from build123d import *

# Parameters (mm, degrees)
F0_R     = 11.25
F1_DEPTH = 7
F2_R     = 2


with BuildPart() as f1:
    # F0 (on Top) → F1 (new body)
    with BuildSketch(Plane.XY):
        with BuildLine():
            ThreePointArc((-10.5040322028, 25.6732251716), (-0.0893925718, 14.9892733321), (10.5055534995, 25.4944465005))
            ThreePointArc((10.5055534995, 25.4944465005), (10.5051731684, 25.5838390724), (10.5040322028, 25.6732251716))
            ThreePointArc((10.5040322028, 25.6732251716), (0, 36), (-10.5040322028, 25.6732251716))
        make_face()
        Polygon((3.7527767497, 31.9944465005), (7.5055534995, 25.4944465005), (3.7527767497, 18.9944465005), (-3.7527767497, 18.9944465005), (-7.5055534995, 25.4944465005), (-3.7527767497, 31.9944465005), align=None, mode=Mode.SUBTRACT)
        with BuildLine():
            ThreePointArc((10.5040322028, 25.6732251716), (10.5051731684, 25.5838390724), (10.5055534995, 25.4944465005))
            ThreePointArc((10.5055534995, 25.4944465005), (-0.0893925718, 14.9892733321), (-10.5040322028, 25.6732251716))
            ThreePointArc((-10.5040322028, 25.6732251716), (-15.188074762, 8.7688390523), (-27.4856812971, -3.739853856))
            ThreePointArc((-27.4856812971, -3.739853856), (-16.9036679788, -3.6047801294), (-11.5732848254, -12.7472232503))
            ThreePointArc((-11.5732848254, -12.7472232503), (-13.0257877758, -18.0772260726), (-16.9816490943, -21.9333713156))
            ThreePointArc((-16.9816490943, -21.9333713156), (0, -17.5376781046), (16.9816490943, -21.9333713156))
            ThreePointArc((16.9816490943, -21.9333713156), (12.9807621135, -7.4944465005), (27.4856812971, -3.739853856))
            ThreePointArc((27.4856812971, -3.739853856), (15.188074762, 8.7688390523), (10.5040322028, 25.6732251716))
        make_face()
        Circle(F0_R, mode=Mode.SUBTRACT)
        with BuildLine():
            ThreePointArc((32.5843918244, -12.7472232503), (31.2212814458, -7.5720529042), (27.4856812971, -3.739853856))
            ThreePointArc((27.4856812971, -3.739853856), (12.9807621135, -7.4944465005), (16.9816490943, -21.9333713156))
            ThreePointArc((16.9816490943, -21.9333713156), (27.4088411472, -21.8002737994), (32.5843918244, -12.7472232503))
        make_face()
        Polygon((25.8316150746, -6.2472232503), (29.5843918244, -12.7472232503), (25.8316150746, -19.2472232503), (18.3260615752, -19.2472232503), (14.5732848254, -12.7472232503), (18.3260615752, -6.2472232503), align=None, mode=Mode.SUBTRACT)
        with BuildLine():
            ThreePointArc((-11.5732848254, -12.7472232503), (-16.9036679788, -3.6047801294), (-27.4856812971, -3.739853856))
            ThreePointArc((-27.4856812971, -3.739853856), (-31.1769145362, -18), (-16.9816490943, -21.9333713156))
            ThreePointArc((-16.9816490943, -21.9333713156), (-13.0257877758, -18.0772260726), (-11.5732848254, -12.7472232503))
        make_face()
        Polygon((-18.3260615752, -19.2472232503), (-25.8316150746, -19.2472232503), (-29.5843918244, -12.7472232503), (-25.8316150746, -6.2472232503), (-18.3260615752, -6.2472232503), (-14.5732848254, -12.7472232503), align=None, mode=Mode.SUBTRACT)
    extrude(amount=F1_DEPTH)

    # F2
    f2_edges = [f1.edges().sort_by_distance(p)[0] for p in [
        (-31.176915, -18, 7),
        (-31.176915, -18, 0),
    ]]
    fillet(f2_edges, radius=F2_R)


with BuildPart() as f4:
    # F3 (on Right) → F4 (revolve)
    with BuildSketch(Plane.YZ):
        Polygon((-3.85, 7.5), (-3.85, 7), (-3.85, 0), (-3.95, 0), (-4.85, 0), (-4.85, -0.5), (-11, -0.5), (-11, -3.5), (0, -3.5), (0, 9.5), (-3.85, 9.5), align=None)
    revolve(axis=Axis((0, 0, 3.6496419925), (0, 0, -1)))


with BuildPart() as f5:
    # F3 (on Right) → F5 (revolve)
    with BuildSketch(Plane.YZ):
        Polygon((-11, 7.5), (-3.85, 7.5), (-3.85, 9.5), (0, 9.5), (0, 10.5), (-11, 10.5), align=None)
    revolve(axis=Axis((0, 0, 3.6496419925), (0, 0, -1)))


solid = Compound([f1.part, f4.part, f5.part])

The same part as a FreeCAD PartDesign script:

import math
import FreeCAD as App
import Part
import Sketcher

V = App.Vector
Q = App.Units.Quantity


def edges_at(feature, points):
    """Names of the edges that pass closest to the given points."""
    edges = feature.Shape.Edges
    near = lambda p: min(range(len(edges)), key=lambda i: edges[i].distToShape(Part.Vertex(*p))[0])
    return sorted({f"Edge{near(p) + 1}" for p in points})


def add_polygon(sketch, points):
    """Adds a closed chain of lines whose ends are joined by coincident constraints."""
    first, n = sketch.GeometryCount, len(points)
    for a, b in zip(points, points[1:] + points[:1]):
        sketch.addGeometry(Part.LineSegment(App.Vector(*a, 0), App.Vector(*b, 0)), False)
    for i in range(n):
        sketch.addConstraint(Sketcher.Constraint("Coincident", first + i, 2, first + (i + 1) % n, 1))

doc = App.newDocument("Part")
body = doc.addObject("PartDesign::Body", "Body")

# Sketch on XY plane
sketch1 = body.newObject("Sketcher::SketchObject", "Sketch")
sketch1.AttachmentSupport = (doc.getObject("XY_Plane"), [""])
sketch1.MapMode = "FlatFace"
sketch1.addGeometry(Part.ArcOfCircle(Part.Circle(V(0, 25, 0), V(0, 0, 1), 11), math.radians(1), math.radians(179)), False)  # 0
sketch1.addGeometry(Part.ArcOfCircle(Part.Circle(V(-45, 26, 0), V(0, 0, 1), 35), math.radians(-59), math.radians(-1)), False)  # 1
sketch1.addGeometry(Part.ArcOfCircle(Part.Circle(V(-22, -13, 0), V(0, 0, 1), 11), math.radians(121), math.radians(299)), False)  # 2
sketch1.addGeometry(Part.ArcOfCircle(Part.Circle(V(0, -53, 0), V(0, 0, 1), 35), math.radians(61), math.radians(119)), False)  # 3
sketch1.addGeometry(Part.ArcOfCircle(Part.Circle(V(22, -13, 0), V(0, 0, 1), 11), math.radians(-119), math.radians(0)), False)  # 4
sketch1.addGeometry(Part.ArcOfCircle(Part.Circle(V(22, -13, 0), V(0, 0, 1), 11), math.radians(0), math.radians(59)), False)  # 5
sketch1.addGeometry(Part.ArcOfCircle(Part.Circle(V(45, 26, 0), V(0, 0, 1), 35), math.radians(-179), math.radians(-121)), False)  # 6
add_polygon(sketch1, [(-15, -13), (-18, -19), (-26, -19), (-30, -13), (-26, -6), (-18, -6)])  # lines 7-12
sketch1.addGeometry(Part.Circle(V(0, 0, 0), V(0, 0, 1), 11), False)  # 13
add_polygon(sketch1, [(18, -6), (26, -6), (30, -13), (26, -19), (18, -19), (15, -13)])  # lines 14-19
add_polygon(sketch1, [(-4, 32), (4, 32), (8, 25), (4, 19), (-4, 19), (-8, 25)])  # lines 20-25
sketch1.addConstraint([
    Sketcher.Constraint("Tangent", 0, 2, 1, 2),
    Sketcher.Constraint("Tangent", 1, 1, 2, 1),
    Sketcher.Constraint("Tangent", 2, 2, 3, 2),
    Sketcher.Constraint("Tangent", 3, 1, 4, 1),
    Sketcher.Constraint("Tangent", 4, 2, 5, 1),
    Sketcher.Constraint("Tangent", 5, 2, 6, 2),
    Sketcher.Constraint("Tangent", 6, 1, 0, 1),
    Sketcher.Constraint("Horizontal", 8),
    Sketcher.Constraint("Horizontal", 11),
    Sketcher.Constraint("Horizontal", 14),
    Sketcher.Constraint("Horizontal", 17),
    Sketcher.Constraint("Horizontal", 20),
    Sketcher.Constraint("Horizontal", 23),
    Sketcher.Constraint("Coincident", 13, 3, -1, 1),
    Sketcher.Constraint("Equal", 0, 2),
    Sketcher.Constraint("Equal", 1, 3),
    Sketcher.Constraint("Equal", 2, 4),
    Sketcher.Constraint("Equal", 4, 5),
    Sketcher.Constraint("Equal", 3, 6),
    Sketcher.Constraint("Symmetric", 2, 3, 4, 3, -2),
    Sketcher.Constraint("Symmetric", 10, 2, 14, 2, -2),
    Sketcher.Constraint("Symmetric", 9, 2, 15, 2, -2),
    Sketcher.Constraint("Symmetric", 8, 2, 16, 2, -2),
    Sketcher.Constraint("Symmetric", 12, 2, 18, 2, -2),
    Sketcher.Constraint("Symmetric", 21, 2, 24, 2, -2),
    Sketcher.Constraint("PointOnObject", 0, 3, -2),
    Sketcher.Constraint("Parallel", 7, 10),
    Sketcher.Constraint("Parallel", 9, 12),
    Sketcher.Constraint("Parallel", 12, 15),
    Sketcher.Constraint("Parallel", 15, 18),
    Sketcher.Constraint("Parallel", 16, 19),
    Sketcher.Constraint("Parallel", 18, 21),
    Sketcher.Constraint("Parallel", 19, 22),
    Sketcher.Constraint("Parallel", 21, 24),
    Sketcher.Constraint("Parallel", 22, 25),
    Sketcher.Constraint("Horizontal", 5, 3, 4, 2),
    Sketcher.Constraint("Horizontal", 4, 2, 9, 2),
    Sketcher.Constraint("Horizontal", 9, 2, 12, 2),
    Sketcher.Constraint("Horizontal", 0, 3, 21, 2),
    Sketcher.Constraint("Vertical", 8, 2, 10, 2),
    Sketcher.Constraint("Vertical", 20, 2, 22, 2),
    Sketcher.Constraint("Equal", 17, 20),
    Sketcher.Constraint("Equal", 19, 21),
    Sketcher.Constraint("Radius", 1, Q("35 mm")),
    Sketcher.Constraint("Diameter", 13, Q("22.5 mm")),
    Sketcher.Constraint("Angle", 7, Q("-120 deg")),
    Sketcher.Constraint("DistanceY", 8, 2, 10, 2, Q("13 mm")),
    Sketcher.Constraint("DistanceX", 15, 2, 4, 2, Q("3 mm")),
    Sketcher.Constraint("Radius", 0, Q("10.505553 mm")),
    Sketcher.Constraint("DistanceY", 1, 1, 0, 3, Q("29.2343 mm")),
    Sketcher.Constraint("DistanceX", 2, 2, 3, 1, Q("33.963298 mm")),
    Sketcher.Constraint("DistanceX", 8, 2, 8, 1, Q("7.505553 mm")),
    Sketcher.Constraint("DistanceY", -1, 1, 1, 3, Q("26.268839 mm")),
])
pad1 = body.newObject("PartDesign::Pad", "Pad")
pad1.Profile = sketch1
pad1.Length = 7
doc.recompute()

fillet = body.newObject("PartDesign::Fillet", "Fillet")
fillet.Base = (pad1, edges_at(pad1, [(-31.177, -18, 7), (-31.177, -18, 0)]))
fillet.Radius = 2
body2 = doc.addObject("PartDesign::Body", "Body001")

# Sketch on YZ plane
sketch2 = body2.newObject("Sketcher::SketchObject", "Sketch001")
sketch2.AttachmentSupport = (doc.getObject("YZ_Plane001"), [""])
sketch2.MapMode = "FlatFace"
add_polygon(sketch2, [(-3.9, 0), (-4.8, 0), (-4.8, -0.5), (-11, -0.5), (-11, -3.5), (0, -3.5), (0, 9.5), (-3.9, 9.5)])  # lines 0-7
sketch2.addConstraint([
    Sketcher.Constraint("Horizontal", 0),
    Sketcher.Constraint("Vertical", 1),
    Sketcher.Constraint("Horizontal", 2),
    Sketcher.Constraint("Vertical", 3),
    Sketcher.Constraint("Horizontal", 4),
    Sketcher.Constraint("Vertical", 5),
    Sketcher.Constraint("Horizontal", 6),
    Sketcher.Constraint("Vertical", 7),
    Sketcher.Constraint("PointOnObject", 0, 2, -1),
    Sketcher.Constraint("PointOnObject", 4, 2, -2),
    Sketcher.Constraint("DistanceX", 0, 2, 0, 1, Q("1 mm")),
    Sketcher.Constraint("DistanceX", 4, 1, 4, 2, Q("11 mm")),
    Sketcher.Constraint("DistanceY", 3, 2, 3, 1, Q("3 mm")),
    Sketcher.Constraint("DistanceY", 5, 1, 5, 2, Q("13 mm")),
    Sketcher.Constraint("DistanceY", 1, 2, 1, 1, Q("0.5 mm")),
    Sketcher.Constraint("DistanceX", 2, 2, 2, 1, Q("6.15 mm")),
])
revolution = body2.newObject("PartDesign::Revolution", "Revolution")
revolution.Profile = sketch2
revolution.ReferenceAxis = (sketch2, ["V_Axis"])
revolution.Angle = 360
body3 = doc.addObject("PartDesign::Body", "Body002")

# Sketch on YZ plane
sketch3 = body3.newObject("Sketcher::SketchObject", "Sketch002")
sketch3.AttachmentSupport = (doc.getObject("YZ_Plane002"), [""])
sketch3.MapMode = "FlatFace"
add_polygon(sketch3, [(-11, 7.5), (-3.9, 7.5), (-3.9, 9.5), (0, 9.5), (0, 10.5), (-11, 10.5)])  # lines 0-5
sketch3.addConstraint([
    Sketcher.Constraint("Horizontal", 0),
    Sketcher.Constraint("Vertical", 1),
    Sketcher.Constraint("Horizontal", 2),
    Sketcher.Constraint("Vertical", 3),
    Sketcher.Constraint("Horizontal", 4),
    Sketcher.Constraint("Vertical", 5),
    Sketcher.Constraint("PointOnObject", 2, 2, -2),
    Sketcher.Constraint("DistanceX", 4, 2, 4, 1, Q("11 mm")),
    Sketcher.Constraint("DistanceY", 1, 1, 1, 2, Q("2 mm")),
    Sketcher.Constraint("DistanceY", 3, 1, 3, 2, Q("1 mm")),
    Sketcher.Constraint("DistanceX", 0, 1, 0, 2, Q("7.15 mm")),
    Sketcher.Constraint("DistanceY", -1, 1, 0, 2, Q("7.5 mm")),
])
revolution2 = body3.newObject("PartDesign::Revolution", "Revolution001")
revolution2.Profile = sketch3
revolution2.ReferenceAxis = (sketch3, ["V_Axis"])
revolution2.Angle = 360

doc.recompute()
